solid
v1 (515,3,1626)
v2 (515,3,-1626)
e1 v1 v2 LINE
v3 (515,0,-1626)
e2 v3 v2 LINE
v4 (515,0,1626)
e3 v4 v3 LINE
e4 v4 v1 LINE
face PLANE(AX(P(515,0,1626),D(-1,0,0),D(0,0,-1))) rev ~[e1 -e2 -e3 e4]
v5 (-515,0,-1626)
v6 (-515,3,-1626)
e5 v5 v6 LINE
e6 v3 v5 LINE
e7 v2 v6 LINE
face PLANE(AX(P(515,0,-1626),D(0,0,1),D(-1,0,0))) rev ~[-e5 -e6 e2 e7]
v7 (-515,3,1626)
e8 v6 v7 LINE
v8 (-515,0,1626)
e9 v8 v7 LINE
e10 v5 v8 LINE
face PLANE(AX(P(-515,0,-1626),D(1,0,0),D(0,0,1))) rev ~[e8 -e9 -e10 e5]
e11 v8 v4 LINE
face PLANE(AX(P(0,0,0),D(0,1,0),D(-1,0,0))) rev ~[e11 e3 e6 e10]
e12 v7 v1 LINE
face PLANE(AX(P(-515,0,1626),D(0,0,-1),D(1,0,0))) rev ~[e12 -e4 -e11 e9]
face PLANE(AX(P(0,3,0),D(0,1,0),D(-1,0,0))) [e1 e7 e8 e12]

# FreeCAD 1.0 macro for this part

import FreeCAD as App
import Part
import Sketcher


def add_polygon(sketch, points):
    """Adds a closed chain of lines whose ends are joined by coincident constraints."""
    first, n = sketch.GeometryCount, len(points)
    for a, b in zip(points, points[1:] + points[:1]):
        sketch.addGeometry(Part.LineSegment(App.Vector(*a, 0), App.Vector(*b, 0)), False)
    for i in range(n):
        sketch.addConstraint(Sketcher.Constraint("Coincident", first + i, 2, first + (i + 1) % n, 1))

doc = App.newDocument("Part")
body = doc.addObject("PartDesign::Body", "Body")

# Sketch on XZ plane
sketch1 = doc.addObject("Sketcher::SketchObject", "Sketch")
body.addObject(sketch1)
sketch1.AttachmentSupport = (doc.XZ_Plane, [""])
sketch1.MapMode = "FlatFace"
add_polygon(sketch1, [(-515, -1626), (-515, 1626), (515, 1626), (515, -1626)])  # lines 0-3
sketch1.addConstraint([
    Sketcher.Constraint("Vertical", 0),
    Sketcher.Constraint("Horizontal", 1),
    Sketcher.Constraint("Vertical", 2),
    Sketcher.Constraint("Horizontal", 3),
    Sketcher.Constraint("Symmetric", 0, 2, 2, 2, -1, 1),
    Sketcher.Constraint("DistanceX", 1, 1, 1, 2, 1030.0),
    Sketcher.Constraint("DistanceY", 0, 1, 0, 2, 3252.0),
])
pad1 = doc.addObject("PartDesign::Pad", "Pad")
body.addObject(pad1)
pad1.Profile = sketch1
pad1.Length = 3
pad1.Reversed = True

doc.recompute()
